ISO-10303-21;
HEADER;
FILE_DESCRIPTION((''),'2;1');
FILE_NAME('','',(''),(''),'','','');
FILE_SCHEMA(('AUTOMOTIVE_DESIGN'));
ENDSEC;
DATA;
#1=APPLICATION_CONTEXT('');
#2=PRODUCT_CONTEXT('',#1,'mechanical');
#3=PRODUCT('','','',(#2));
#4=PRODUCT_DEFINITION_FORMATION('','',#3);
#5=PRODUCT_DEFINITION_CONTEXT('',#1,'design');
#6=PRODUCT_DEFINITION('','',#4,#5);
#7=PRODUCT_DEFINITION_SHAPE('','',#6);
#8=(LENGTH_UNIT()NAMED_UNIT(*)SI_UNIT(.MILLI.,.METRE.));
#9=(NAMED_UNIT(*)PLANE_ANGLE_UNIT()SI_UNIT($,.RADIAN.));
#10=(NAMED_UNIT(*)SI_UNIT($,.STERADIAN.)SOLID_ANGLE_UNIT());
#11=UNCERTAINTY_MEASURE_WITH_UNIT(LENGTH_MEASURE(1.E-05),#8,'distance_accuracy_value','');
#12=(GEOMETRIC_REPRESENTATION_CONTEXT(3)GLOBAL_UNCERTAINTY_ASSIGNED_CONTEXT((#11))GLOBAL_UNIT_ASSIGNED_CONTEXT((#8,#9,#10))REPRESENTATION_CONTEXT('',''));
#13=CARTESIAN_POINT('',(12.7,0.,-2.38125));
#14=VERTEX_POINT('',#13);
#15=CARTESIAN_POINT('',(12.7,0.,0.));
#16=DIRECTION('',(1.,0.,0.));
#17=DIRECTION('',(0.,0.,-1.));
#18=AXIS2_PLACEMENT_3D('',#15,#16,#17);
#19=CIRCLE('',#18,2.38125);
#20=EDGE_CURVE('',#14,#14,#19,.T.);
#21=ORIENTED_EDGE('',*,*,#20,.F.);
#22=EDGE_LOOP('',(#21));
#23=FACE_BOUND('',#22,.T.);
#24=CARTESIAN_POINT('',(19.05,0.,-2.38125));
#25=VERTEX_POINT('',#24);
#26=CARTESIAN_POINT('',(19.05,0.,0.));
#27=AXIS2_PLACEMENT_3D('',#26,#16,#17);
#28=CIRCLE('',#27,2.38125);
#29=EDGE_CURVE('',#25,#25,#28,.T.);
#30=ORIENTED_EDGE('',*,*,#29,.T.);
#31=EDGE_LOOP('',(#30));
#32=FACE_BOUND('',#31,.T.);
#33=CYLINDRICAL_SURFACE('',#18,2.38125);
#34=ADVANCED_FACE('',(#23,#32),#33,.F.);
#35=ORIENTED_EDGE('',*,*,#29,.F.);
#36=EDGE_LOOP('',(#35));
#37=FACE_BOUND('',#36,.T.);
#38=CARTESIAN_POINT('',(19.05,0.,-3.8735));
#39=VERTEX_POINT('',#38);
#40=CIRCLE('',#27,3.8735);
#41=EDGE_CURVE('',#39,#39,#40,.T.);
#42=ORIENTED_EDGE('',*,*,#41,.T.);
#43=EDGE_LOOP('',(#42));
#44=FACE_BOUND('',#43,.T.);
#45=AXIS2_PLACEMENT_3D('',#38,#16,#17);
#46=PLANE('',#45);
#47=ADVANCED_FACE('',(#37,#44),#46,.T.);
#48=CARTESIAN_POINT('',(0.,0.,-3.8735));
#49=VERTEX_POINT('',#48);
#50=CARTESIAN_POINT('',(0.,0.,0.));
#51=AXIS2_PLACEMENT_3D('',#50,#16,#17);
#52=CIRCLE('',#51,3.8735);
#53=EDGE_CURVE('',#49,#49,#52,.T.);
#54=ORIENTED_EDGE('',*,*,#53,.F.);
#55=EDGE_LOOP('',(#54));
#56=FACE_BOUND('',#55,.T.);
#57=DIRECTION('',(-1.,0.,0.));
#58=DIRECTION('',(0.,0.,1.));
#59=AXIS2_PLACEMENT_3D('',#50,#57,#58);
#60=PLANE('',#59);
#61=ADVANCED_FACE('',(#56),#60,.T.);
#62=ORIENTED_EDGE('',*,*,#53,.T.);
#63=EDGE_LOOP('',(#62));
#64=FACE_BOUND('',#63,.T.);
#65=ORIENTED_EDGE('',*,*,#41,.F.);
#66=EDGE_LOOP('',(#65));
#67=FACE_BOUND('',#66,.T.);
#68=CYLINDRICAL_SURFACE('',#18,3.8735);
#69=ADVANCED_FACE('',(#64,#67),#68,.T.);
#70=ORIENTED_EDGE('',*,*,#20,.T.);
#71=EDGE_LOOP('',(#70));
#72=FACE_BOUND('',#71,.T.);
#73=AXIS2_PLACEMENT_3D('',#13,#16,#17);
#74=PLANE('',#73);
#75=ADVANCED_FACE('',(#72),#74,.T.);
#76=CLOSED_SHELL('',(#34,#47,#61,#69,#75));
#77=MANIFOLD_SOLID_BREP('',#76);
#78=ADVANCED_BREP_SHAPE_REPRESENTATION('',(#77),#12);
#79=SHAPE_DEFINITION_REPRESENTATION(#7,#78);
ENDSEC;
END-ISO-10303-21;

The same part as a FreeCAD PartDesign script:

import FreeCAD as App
import Part
import Sketcher
from FreeCAD import Vector
Q = App.Units.Quantity


def add_polygon(sketch, points):
    """Adds a closed chain of lines whose ends are joined by coincident constraints."""
    first, n = sketch.GeometryCount, len(points)
    for a, b in zip(points, points[1:] + points[:1]):
        sketch.addGeometry(Part.LineSegment(App.Vector(*a, 0), App.Vector(*b, 0)), False)
    for i in range(n):
        sketch.addConstraint(Sketcher.Constraint("Coincident", first + i, 2, first + (i + 1) % n, 1))

doc = App.newDocument("Part")
body = doc.addObject("PartDesign::Body", "Body")

sketch1 = body.newObject("Sketcher::SketchObject", "Sketch")
sketch1.AttachmentSupport = (doc.getObject("XZ_Plane"), [""])
sketch1.MapMode = "FlatFace"
add_polygon(sketch1, [(0, -3.8735), (0, 0), (12.7, 0), (12.7, -2.38125), (19.05, -2.38125), (19.05, -3.8735)])
sketch1.addConstraint(Sketcher.Constraint("Vertical", 0))
sketch1.addConstraint(Sketcher.Constraint("Horizontal", 1))
sketch1.addConstraint(Sketcher.Constraint("Vertical", 2))
sketch1.addConstraint(Sketcher.Constraint("Horizontal", 3))
sketch1.addConstraint(Sketcher.Constraint("Vertical", 4))
sketch1.addConstraint(Sketcher.Constraint("Horizontal", 5))
sketch1.addConstraint(Sketcher.Constraint("Coincident", 0, 2, -1, 1))
sketch1.addConstraint(Sketcher.Constraint("DistanceX", 1, 1, 1, 2, Q("0.5 in")))
sketch1.addConstraint(Sketcher.Constraint("DistanceX", 3, 1, 3, 2, Q("0.25 in")))
sketch1.addConstraint(Sketcher.Constraint("DistanceY", 2, 2, 2, 1, Q("0.09375 in")))
sketch1.addConstraint(Sketcher.Constraint("DistanceY", 0, 1, 0, 2, Q("0.1525 in")))
revolution = body.newObject("PartDesign::Revolution", "Revolution")
revolution.Profile = sketch1
revolution.ReferenceAxis = (sketch1, ["H_Axis"])
revolution.Angle = 360

doc.recompute()
